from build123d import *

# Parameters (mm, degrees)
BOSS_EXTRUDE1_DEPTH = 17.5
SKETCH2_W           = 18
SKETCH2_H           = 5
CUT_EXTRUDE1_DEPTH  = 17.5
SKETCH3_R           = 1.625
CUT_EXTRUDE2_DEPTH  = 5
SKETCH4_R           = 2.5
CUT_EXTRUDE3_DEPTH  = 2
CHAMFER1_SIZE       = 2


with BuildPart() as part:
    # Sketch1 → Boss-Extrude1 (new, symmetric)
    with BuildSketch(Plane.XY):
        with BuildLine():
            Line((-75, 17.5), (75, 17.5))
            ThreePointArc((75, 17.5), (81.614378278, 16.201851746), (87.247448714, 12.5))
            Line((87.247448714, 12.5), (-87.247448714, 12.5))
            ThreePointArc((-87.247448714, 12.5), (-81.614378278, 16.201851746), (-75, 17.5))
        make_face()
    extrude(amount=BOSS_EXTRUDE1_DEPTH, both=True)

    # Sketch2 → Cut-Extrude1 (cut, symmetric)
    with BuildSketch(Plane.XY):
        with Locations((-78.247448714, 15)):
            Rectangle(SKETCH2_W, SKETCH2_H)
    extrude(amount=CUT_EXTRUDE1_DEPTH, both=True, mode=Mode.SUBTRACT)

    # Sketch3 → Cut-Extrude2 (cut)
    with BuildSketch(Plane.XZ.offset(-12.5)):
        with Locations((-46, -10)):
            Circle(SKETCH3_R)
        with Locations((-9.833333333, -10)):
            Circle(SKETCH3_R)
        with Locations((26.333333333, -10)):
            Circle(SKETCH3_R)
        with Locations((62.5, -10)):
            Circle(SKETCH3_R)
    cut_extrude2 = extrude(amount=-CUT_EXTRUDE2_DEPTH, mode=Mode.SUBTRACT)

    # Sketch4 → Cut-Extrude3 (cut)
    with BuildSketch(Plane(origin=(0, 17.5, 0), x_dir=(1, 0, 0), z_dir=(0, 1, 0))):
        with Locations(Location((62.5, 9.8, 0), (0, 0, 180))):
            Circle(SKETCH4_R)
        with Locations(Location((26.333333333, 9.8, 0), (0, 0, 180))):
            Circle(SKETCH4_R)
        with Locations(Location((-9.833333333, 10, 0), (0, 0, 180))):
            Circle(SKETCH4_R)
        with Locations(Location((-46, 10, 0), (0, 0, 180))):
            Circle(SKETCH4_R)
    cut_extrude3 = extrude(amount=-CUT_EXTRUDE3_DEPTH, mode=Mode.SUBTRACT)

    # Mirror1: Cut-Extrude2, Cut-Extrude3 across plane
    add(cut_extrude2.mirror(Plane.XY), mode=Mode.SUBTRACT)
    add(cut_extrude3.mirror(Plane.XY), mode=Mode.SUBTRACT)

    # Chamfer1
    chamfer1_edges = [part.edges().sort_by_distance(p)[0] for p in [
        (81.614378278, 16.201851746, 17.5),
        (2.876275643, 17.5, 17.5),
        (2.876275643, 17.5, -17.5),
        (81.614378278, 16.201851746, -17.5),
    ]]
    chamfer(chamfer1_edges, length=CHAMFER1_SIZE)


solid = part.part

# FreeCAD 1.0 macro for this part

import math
import FreeCAD as App
import Part
import Sketcher
from FreeCAD import Vector
Q = App.Units.Quantity


def edges_at(feature, points):
    """Names of the edges that pass closest to the given points."""
    edges = feature.Shape.Edges
    near = lambda p: min(range(len(edges)), key=lambda i: edges[i].distToShape(Part.Vertex(*p))[0])
    return sorted({f"Edge{near(p) + 1}" for p in points})

doc = App.newDocument("Part")
params = doc.addObject("Spreadsheet::Sheet", "Params")
for row, (alias, value) in enumerate([
    ("sketch1_radius", "17.5 mm"),
    ("sketch1_width", "150 mm"),
    ("pad1_length", "35 mm"),
    ("sketch2_width", "18 mm"),
    ("sketch2_height", "5 mm"),
    ("pocket1_length", "35 mm"),
    ("sketch3_diameter", "3.25 mm"),
    ("pocket2_length", "5 mm"),
    ("sketch4_diameter", "5 mm"),
    ("pocket3_length", "2 mm"),
    ("chamfer_size", "2 mm"),
], start=1):
    params.set(f"A{row}", alias)
    params.set(f"B{row}", "=" + value)
    params.setAlias(f"B{row}", alias)

body = doc.addObject("PartDesign::Body", "Body")

sketch1 = doc.addObject("Sketcher::SketchObject", "Sketch")
body.addObject(sketch1)
sketch1.AttachmentSupport = (doc.XY_Plane, [""])
sketch1.MapMode = "FlatFace"
sketch1.addGeometry(Part.LineSegment(Vector(75, 17.5, 0), Vector(-75, 17.5, 0)), False)
sketch1.addGeometry(Part.ArcOfCircle(Part.Circle(Vector(-75, 0, 0), Vector(0, 0, 1), 17.5), math.radians(90), math.radians(134.415309)), False)
sketch1.addGeometry(Part.LineSegment(Vector(-87.247449, 12.5, 0), Vector(87.247449, 12.5, 0)), False)
sketch1.addGeometry(Part.ArcOfCircle(Part.Circle(Vector(75, 0, 0), Vector(0, 0, 1), 17.5), math.radians(45.584691), math.radians(90)), False)
sketch1.addConstraint(Sketcher.Constraint("Tangent", 0, 2, 1, 1))
sketch1.addConstraint(Sketcher.Constraint("Coincident", 1, 2, 2, 1))
sketch1.addConstraint(Sketcher.Constraint("Coincident", 2, 2, 3, 1))
sketch1.addConstraint(Sketcher.Constraint("Tangent", 3, 2, 0, 1))
sketch1.addConstraint(Sketcher.Constraint("Horizontal", 0))
sketch1.addConstraint(Sketcher.Constraint("Horizontal", 2))
sketch1.addConstraint(Sketcher.Constraint("Equal", 1, 3))
sketch1.addConstraint(Sketcher.Constraint("Symmetric", 1, 3, 3, 3, -1, 1))
sketch1.addConstraint(Sketcher.Constraint("Radius", 1, Q("17.5 mm")))
sketch1.addConstraint(Sketcher.Constraint("DistanceX", 0, 2, 0, 1, Q("150 mm")))
sketch1.addConstraint(Sketcher.Constraint("DistanceY", 1, 2, 0, 2, Q("5 mm")))
sketch1.setExpression("Constraints[8]", "Params.sketch1_radius")
sketch1.setExpression("Constraints[9]", "Params.sketch1_width")
pad1 = doc.addObject("PartDesign::Pad", "Pad")
body.addObject(pad1)
pad1.Profile = sketch1
pad1.setExpression("Length", "Params.pad1_length")
pad1.Midplane = True

sketch2 = doc.addObject("Sketcher::SketchObject", "Sketch001")
body.addObject(sketch2)
sketch2.AttachmentSupport = (doc.XY_Plane, [""])
sketch2.MapMode = "FlatFace"
sketch2.addGeometry(Part.LineSegment(Vector(-87.247449, 17.5, 0), Vector(-87.247449, 12.5, 0)), False)
sketch2.addGeometry(Part.LineSegment(Vector(-87.247449, 12.5, 0), Vector(-69.247449, 12.5, 0)), False)
sketch2.addGeometry(Part.LineSegment(Vector(-69.247449, 12.5, 0), Vector(-69.247449, 17.5, 0)), False)
sketch2.addGeometry(Part.LineSegment(Vector(-69.247449, 17.5, 0), Vector(-87.247449, 17.5, 0)), False)
sketch2.addConstraint(Sketcher.Constraint("Coincident", 0, 2, 1, 1))
sketch2.addConstraint(Sketcher.Constraint("Coincident", 1, 2, 2, 1))
sketch2.addConstraint(Sketcher.Constraint("Coincident", 2, 2, 3, 1))
sketch2.addConstraint(Sketcher.Constraint("Coincident", 3, 2, 0, 1))
sketch2.addConstraint(Sketcher.Constraint("Vertical", 0))
sketch2.addConstraint(Sketcher.Constraint("Horizontal", 1))
sketch2.addConstraint(Sketcher.Constraint("Vertical", 2))
sketch2.addConstraint(Sketcher.Constraint("Horizontal", 3))
sketch2.addConstraint(Sketcher.Constraint("DistanceX", 1, 1, 1, 2, Q("18 mm")))
sketch2.addConstraint(Sketcher.Constraint("DistanceY", 0, 2, 0, 1, Q("5 mm")))
sketch2.addConstraint(Sketcher.Constraint("DistanceY", -1, 1, 0, 2, Q("12.5 mm")))
sketch2.addConstraint(Sketcher.Constraint("DistanceX", 0, 2, -1, 1, Q("87.247449 mm")))
sketch2.setExpression("Constraints[8]", "Params.sketch2_width")
sketch2.setExpression("Constraints[9]", "Params.sketch2_height")
pocket1 = doc.addObject("PartDesign::Pocket", "Pocket")
body.addObject(pocket1)
pocket1.Profile = sketch2
pocket1.setExpression("Length", "Params.pocket1_length")
pocket1.Midplane = True

sketch3 = doc.addObject("Sketcher::SketchObject", "Sketch002")
body.addObject(sketch3)
sketch3.AttachmentSupport = (doc.XZ_Plane, [""])
sketch3.MapMode = "FlatFace"
sketch3.AttachmentOffset = App.Placement(Vector(0, 0, -12.5), App.Rotation())
sketch3.addGeometry(Part.Circle(Vector(-46, -10, 0), Vector(0, 0, 1), 1.625), False)
sketch3.addGeometry(Part.Circle(Vector(-9.833333, -10, 0), Vector(0, 0, 1), 1.625), False)
sketch3.addGeometry(Part.Circle(Vector(26.333333, -10, 0), Vector(0, 0, 1), 1.625), False)
sketch3.addGeometry(Part.Circle(Vector(62.5, -10, 0), Vector(0, 0, 1), 1.625), False)
sketch3.addConstraint(Sketcher.Constraint("Equal", 0, 1))
sketch3.addConstraint(Sketcher.Constraint("Equal", 1, 2))
sketch3.addConstraint(Sketcher.Constraint("Equal", 2, 3))
sketch3.addConstraint(Sketcher.Constraint("Horizontal", 0, 3, 1, 3))
sketch3.addConstraint(Sketcher.Constraint("Horizontal", 1, 3, 2, 3))
sketch3.addConstraint(Sketcher.Constraint("Horizontal", 2, 3, 3, 3))
sketch3.addConstraint(Sketcher.Constraint("Diameter", 0, Q("3.25 mm")))
sketch3.addConstraint(Sketcher.Constraint("DistanceX", 0, 3, -1, 1, Q("46 mm")))
sketch3.addConstraint(Sketcher.Constraint("DistanceY", 0, 3, -1, 1, Q("10 mm")))
sketch3.addConstraint(Sketcher.Constraint("DistanceX", -1, 1, 3, 3, Q("62.5 mm")))
sketch3.addConstraint(Sketcher.Constraint("DistanceX", 1, 3, -1, 1, Q("9.833333 mm")))
sketch3.addConstraint(Sketcher.Constraint("DistanceX", -1, 1, 2, 3, Q("26.333333 mm")))
sketch3.setExpression("Constraints[6]", "Params.sketch3_diameter")
pocket2 = doc.addObject("PartDesign::Pocket", "Pocket001")
body.addObject(pocket2)
pocket2.Profile = sketch3
pocket2.setExpression("Length", "Params.pocket2_length")

sketch4 = doc.addObject("Sketcher::SketchObject", "Sketch003")
body.addObject(sketch4)
sketch4.AttachmentSupport = (doc.XZ_Plane, [""])
sketch4.MapMode = "FlatFace"
sketch4.AttachmentOffset = App.Placement(Vector(0, 0, -17.5), App.Rotation())
sketch4.addGeometry(Part.Circle(Vector(62.5, -9.8, 0), Vector(0, 0, 1), 2.5), False)
sketch4.addGeometry(Part.Circle(Vector(26.333333, -9.8, 0), Vector(0, 0, 1), 2.5), False)
sketch4.addGeometry(Part.Circle(Vector(-9.833333, -10, 0), Vector(0, 0, 1), 2.5), False)
sketch4.addGeometry(Part.Circle(Vector(-46, -10, 0), Vector(0, 0, 1), 2.5), False)
sketch4.addConstraint(Sketcher.Constraint("Equal", 0, 1))
sketch4.addConstraint(Sketcher.Constraint("Equal", 1, 2))
sketch4.addConstraint(Sketcher.Constraint("Equal", 2, 3))
sketch4.addConstraint(Sketcher.Constraint("Horizontal", 0, 3, 1, 3))
sketch4.addConstraint(Sketcher.Constraint("Horizontal", 2, 3, 3, 3))
sketch4.addConstraint(Sketcher.Constraint("Diameter", 0, Q("5 mm")))
sketch4.addConstraint(Sketcher.Constraint("DistanceY", 2, 3, -1, 1, Q("10 mm")))
sketch4.addConstraint(Sketcher.Constraint("DistanceX", 3, 3, -1, 1, Q("46 mm")))
sketch4.addConstraint(Sketcher.Constraint("DistanceX", -1, 1, 0, 3, Q("62.5 mm")))
sketch4.addConstraint(Sketcher.Constraint("DistanceY", 0, 3, -1, 1, Q("9.8 mm")))
sketch4.addConstraint(Sketcher.Constraint("DistanceX", -1, 1, 1, 3, Q("26.333333 mm")))
sketch4.addConstraint(Sketcher.Constraint("DistanceX", 2, 3, -1, 1, Q("9.833333 mm")))
sketch4.setExpression("Constraints[5]", "Params.sketch4_diameter")
pocket3 = doc.addObject("PartDesign::Pocket", "Pocket002")
body.addObject(pocket3)
pocket3.Profile = sketch4
pocket3.setExpression("Length", "Params.pocket3_length")
pocket3.Reversed = True
doc.recompute()

mirrored = doc.addObject("PartDesign::Mirrored", "Mirrored")
body.addObject(mirrored)
mirrored.Originals = [pocket2, pocket3]
mirrored.MirrorPlane = (doc.XY_Plane, [""])
body.Tip = mirrored
doc.recompute()

chamfer = doc.addObject("PartDesign::Chamfer", "Chamfer")
body.addObject(chamfer)
chamfer.Base = (mirrored, edges_at(mirrored, [
    (81.614, 16.202, 17.5),
    (2.876, 17.5, 17.5),
    (2.876, 17.5, -17.5),
    (81.614, 16.202, -17.5),
]))
chamfer.setExpression("Size", "Params.chamfer_size")

doc.recompute()
